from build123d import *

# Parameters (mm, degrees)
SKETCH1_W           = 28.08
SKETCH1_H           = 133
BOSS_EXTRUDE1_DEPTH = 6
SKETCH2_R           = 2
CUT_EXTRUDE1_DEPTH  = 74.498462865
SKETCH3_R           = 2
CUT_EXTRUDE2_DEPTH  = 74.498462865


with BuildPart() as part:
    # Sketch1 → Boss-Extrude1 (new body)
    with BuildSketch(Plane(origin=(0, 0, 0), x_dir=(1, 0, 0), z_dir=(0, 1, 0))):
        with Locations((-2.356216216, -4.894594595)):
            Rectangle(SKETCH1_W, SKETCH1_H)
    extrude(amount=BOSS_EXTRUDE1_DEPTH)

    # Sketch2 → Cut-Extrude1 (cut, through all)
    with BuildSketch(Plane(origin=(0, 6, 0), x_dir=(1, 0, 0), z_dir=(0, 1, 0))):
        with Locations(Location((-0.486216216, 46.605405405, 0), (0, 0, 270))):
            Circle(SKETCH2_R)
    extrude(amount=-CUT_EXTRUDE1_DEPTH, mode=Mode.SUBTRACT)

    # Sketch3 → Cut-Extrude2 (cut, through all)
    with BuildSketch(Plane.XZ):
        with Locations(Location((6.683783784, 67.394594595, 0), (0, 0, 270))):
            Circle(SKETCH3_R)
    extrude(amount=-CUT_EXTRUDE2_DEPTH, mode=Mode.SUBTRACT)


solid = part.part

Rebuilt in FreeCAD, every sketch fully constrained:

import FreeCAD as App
import Part
import Sketcher

V = App.Vector

doc = App.newDocument("Part")
body = doc.addObject("PartDesign::Body", "Body")

# Sketch on XZ plane
sketch1 = body.newObject("Sketcher::SketchObject", "Sketch")
sketch1.AttachmentSupport = (doc.getObject("XZ_Plane"), [""])
sketch1.MapMode = "FlatFace"
sketch1.addGeometry([
    Part.LineSegment(V(-16.396216, -61.605405, 0), V(-16.396216, 71.394595, 0)),
    Part.LineSegment(V(-16.396216, 71.394595, 0), V(11.683784, 71.394595, 0)),
    Part.LineSegment(V(11.683784, 71.394595, 0), V(11.683784, -61.605405, 0)),
    Part.LineSegment(V(11.683784, -61.605405, 0), V(-16.396216, -61.605405, 0)),
], False)
sketch1.addConstraint([
    Sketcher.Constraint("Coincident", 0, 2, 1, 1),
    Sketcher.Constraint("Coincident", 1, 2, 2, 1),
    Sketcher.Constraint("Coincident", 2, 2, 3, 1),
    Sketcher.Constraint("Coincident", 3, 2, 0, 1),
    Sketcher.Constraint("Vertical", 0),
    Sketcher.Constraint("Horizontal", 1),
    Sketcher.Constraint("Vertical", 2),
    Sketcher.Constraint("Horizontal", 3),
    Sketcher.Constraint("DistanceY", 0, 1, 0, 2, 133.0),
    Sketcher.Constraint("DistanceX", 1, 1, 1, 2, 28.08),
    Sketcher.Constraint("DistanceX", 0, 2, -1, 1, 16.396216),
    Sketcher.Constraint("DistanceY", -1, 1, 0, 2, 71.394595),
])
pad1 = body.newObject("PartDesign::Pad", "Pad")
pad1.Profile = sketch1
pad1.Length = 6
pad1.Reversed = True

# Sketch on XZ plane
sketch2 = body.newObject("Sketcher::SketchObject", "Sketch001")
sketch2.AttachmentSupport = (doc.getObject("XZ_Plane"), [""])
sketch2.MapMode = "FlatFace"
sketch2.AttachmentOffset = App.Placement(V(0, 0, -6), App.Rotation())
sketch2.addGeometry(Part.Circle(V(-0.486216, -46.605405, 0), V(0, 0, 1), 2), False)
sketch2.addConstraint([
    Sketcher.Constraint("Diameter", 0, 4.0),
    Sketcher.Constraint("DistanceX", 0, 3, -1, 1, 0.486216),
    Sketcher.Constraint("DistanceY", 0, 3, -1, 1, 46.605405),
])
pocket1 = body.newObject("PartDesign::Pocket", "Pocket")
pocket1.Profile = sketch2
pocket1.Type = "ThroughAll"
pocket1.Reversed = True

# Sketch on XZ plane
sketch3 = body.newObject("Sketcher::SketchObject", "Sketch002")
sketch3.AttachmentSupport = (doc.getObject("XZ_Plane"), [""])
sketch3.MapMode = "FlatFace"
sketch3.addGeometry(Part.Circle(V(6.683784, 67.394595, 0), V(0, 0, 1), 2), False)
sketch3.addConstraint([
    Sketcher.Constraint("Diameter", 0, 4.0),
    Sketcher.Constraint("DistanceX", -1, 1, 0, 3, 6.683784),
    Sketcher.Constraint("DistanceY", -1, 1, 0, 3, 67.394595),
])
pocket2 = body.newObject("PartDesign::Pocket", "Pocket001")
pocket2.Profile = sketch3
pocket2.Type = "ThroughAll"

doc.recompute()
